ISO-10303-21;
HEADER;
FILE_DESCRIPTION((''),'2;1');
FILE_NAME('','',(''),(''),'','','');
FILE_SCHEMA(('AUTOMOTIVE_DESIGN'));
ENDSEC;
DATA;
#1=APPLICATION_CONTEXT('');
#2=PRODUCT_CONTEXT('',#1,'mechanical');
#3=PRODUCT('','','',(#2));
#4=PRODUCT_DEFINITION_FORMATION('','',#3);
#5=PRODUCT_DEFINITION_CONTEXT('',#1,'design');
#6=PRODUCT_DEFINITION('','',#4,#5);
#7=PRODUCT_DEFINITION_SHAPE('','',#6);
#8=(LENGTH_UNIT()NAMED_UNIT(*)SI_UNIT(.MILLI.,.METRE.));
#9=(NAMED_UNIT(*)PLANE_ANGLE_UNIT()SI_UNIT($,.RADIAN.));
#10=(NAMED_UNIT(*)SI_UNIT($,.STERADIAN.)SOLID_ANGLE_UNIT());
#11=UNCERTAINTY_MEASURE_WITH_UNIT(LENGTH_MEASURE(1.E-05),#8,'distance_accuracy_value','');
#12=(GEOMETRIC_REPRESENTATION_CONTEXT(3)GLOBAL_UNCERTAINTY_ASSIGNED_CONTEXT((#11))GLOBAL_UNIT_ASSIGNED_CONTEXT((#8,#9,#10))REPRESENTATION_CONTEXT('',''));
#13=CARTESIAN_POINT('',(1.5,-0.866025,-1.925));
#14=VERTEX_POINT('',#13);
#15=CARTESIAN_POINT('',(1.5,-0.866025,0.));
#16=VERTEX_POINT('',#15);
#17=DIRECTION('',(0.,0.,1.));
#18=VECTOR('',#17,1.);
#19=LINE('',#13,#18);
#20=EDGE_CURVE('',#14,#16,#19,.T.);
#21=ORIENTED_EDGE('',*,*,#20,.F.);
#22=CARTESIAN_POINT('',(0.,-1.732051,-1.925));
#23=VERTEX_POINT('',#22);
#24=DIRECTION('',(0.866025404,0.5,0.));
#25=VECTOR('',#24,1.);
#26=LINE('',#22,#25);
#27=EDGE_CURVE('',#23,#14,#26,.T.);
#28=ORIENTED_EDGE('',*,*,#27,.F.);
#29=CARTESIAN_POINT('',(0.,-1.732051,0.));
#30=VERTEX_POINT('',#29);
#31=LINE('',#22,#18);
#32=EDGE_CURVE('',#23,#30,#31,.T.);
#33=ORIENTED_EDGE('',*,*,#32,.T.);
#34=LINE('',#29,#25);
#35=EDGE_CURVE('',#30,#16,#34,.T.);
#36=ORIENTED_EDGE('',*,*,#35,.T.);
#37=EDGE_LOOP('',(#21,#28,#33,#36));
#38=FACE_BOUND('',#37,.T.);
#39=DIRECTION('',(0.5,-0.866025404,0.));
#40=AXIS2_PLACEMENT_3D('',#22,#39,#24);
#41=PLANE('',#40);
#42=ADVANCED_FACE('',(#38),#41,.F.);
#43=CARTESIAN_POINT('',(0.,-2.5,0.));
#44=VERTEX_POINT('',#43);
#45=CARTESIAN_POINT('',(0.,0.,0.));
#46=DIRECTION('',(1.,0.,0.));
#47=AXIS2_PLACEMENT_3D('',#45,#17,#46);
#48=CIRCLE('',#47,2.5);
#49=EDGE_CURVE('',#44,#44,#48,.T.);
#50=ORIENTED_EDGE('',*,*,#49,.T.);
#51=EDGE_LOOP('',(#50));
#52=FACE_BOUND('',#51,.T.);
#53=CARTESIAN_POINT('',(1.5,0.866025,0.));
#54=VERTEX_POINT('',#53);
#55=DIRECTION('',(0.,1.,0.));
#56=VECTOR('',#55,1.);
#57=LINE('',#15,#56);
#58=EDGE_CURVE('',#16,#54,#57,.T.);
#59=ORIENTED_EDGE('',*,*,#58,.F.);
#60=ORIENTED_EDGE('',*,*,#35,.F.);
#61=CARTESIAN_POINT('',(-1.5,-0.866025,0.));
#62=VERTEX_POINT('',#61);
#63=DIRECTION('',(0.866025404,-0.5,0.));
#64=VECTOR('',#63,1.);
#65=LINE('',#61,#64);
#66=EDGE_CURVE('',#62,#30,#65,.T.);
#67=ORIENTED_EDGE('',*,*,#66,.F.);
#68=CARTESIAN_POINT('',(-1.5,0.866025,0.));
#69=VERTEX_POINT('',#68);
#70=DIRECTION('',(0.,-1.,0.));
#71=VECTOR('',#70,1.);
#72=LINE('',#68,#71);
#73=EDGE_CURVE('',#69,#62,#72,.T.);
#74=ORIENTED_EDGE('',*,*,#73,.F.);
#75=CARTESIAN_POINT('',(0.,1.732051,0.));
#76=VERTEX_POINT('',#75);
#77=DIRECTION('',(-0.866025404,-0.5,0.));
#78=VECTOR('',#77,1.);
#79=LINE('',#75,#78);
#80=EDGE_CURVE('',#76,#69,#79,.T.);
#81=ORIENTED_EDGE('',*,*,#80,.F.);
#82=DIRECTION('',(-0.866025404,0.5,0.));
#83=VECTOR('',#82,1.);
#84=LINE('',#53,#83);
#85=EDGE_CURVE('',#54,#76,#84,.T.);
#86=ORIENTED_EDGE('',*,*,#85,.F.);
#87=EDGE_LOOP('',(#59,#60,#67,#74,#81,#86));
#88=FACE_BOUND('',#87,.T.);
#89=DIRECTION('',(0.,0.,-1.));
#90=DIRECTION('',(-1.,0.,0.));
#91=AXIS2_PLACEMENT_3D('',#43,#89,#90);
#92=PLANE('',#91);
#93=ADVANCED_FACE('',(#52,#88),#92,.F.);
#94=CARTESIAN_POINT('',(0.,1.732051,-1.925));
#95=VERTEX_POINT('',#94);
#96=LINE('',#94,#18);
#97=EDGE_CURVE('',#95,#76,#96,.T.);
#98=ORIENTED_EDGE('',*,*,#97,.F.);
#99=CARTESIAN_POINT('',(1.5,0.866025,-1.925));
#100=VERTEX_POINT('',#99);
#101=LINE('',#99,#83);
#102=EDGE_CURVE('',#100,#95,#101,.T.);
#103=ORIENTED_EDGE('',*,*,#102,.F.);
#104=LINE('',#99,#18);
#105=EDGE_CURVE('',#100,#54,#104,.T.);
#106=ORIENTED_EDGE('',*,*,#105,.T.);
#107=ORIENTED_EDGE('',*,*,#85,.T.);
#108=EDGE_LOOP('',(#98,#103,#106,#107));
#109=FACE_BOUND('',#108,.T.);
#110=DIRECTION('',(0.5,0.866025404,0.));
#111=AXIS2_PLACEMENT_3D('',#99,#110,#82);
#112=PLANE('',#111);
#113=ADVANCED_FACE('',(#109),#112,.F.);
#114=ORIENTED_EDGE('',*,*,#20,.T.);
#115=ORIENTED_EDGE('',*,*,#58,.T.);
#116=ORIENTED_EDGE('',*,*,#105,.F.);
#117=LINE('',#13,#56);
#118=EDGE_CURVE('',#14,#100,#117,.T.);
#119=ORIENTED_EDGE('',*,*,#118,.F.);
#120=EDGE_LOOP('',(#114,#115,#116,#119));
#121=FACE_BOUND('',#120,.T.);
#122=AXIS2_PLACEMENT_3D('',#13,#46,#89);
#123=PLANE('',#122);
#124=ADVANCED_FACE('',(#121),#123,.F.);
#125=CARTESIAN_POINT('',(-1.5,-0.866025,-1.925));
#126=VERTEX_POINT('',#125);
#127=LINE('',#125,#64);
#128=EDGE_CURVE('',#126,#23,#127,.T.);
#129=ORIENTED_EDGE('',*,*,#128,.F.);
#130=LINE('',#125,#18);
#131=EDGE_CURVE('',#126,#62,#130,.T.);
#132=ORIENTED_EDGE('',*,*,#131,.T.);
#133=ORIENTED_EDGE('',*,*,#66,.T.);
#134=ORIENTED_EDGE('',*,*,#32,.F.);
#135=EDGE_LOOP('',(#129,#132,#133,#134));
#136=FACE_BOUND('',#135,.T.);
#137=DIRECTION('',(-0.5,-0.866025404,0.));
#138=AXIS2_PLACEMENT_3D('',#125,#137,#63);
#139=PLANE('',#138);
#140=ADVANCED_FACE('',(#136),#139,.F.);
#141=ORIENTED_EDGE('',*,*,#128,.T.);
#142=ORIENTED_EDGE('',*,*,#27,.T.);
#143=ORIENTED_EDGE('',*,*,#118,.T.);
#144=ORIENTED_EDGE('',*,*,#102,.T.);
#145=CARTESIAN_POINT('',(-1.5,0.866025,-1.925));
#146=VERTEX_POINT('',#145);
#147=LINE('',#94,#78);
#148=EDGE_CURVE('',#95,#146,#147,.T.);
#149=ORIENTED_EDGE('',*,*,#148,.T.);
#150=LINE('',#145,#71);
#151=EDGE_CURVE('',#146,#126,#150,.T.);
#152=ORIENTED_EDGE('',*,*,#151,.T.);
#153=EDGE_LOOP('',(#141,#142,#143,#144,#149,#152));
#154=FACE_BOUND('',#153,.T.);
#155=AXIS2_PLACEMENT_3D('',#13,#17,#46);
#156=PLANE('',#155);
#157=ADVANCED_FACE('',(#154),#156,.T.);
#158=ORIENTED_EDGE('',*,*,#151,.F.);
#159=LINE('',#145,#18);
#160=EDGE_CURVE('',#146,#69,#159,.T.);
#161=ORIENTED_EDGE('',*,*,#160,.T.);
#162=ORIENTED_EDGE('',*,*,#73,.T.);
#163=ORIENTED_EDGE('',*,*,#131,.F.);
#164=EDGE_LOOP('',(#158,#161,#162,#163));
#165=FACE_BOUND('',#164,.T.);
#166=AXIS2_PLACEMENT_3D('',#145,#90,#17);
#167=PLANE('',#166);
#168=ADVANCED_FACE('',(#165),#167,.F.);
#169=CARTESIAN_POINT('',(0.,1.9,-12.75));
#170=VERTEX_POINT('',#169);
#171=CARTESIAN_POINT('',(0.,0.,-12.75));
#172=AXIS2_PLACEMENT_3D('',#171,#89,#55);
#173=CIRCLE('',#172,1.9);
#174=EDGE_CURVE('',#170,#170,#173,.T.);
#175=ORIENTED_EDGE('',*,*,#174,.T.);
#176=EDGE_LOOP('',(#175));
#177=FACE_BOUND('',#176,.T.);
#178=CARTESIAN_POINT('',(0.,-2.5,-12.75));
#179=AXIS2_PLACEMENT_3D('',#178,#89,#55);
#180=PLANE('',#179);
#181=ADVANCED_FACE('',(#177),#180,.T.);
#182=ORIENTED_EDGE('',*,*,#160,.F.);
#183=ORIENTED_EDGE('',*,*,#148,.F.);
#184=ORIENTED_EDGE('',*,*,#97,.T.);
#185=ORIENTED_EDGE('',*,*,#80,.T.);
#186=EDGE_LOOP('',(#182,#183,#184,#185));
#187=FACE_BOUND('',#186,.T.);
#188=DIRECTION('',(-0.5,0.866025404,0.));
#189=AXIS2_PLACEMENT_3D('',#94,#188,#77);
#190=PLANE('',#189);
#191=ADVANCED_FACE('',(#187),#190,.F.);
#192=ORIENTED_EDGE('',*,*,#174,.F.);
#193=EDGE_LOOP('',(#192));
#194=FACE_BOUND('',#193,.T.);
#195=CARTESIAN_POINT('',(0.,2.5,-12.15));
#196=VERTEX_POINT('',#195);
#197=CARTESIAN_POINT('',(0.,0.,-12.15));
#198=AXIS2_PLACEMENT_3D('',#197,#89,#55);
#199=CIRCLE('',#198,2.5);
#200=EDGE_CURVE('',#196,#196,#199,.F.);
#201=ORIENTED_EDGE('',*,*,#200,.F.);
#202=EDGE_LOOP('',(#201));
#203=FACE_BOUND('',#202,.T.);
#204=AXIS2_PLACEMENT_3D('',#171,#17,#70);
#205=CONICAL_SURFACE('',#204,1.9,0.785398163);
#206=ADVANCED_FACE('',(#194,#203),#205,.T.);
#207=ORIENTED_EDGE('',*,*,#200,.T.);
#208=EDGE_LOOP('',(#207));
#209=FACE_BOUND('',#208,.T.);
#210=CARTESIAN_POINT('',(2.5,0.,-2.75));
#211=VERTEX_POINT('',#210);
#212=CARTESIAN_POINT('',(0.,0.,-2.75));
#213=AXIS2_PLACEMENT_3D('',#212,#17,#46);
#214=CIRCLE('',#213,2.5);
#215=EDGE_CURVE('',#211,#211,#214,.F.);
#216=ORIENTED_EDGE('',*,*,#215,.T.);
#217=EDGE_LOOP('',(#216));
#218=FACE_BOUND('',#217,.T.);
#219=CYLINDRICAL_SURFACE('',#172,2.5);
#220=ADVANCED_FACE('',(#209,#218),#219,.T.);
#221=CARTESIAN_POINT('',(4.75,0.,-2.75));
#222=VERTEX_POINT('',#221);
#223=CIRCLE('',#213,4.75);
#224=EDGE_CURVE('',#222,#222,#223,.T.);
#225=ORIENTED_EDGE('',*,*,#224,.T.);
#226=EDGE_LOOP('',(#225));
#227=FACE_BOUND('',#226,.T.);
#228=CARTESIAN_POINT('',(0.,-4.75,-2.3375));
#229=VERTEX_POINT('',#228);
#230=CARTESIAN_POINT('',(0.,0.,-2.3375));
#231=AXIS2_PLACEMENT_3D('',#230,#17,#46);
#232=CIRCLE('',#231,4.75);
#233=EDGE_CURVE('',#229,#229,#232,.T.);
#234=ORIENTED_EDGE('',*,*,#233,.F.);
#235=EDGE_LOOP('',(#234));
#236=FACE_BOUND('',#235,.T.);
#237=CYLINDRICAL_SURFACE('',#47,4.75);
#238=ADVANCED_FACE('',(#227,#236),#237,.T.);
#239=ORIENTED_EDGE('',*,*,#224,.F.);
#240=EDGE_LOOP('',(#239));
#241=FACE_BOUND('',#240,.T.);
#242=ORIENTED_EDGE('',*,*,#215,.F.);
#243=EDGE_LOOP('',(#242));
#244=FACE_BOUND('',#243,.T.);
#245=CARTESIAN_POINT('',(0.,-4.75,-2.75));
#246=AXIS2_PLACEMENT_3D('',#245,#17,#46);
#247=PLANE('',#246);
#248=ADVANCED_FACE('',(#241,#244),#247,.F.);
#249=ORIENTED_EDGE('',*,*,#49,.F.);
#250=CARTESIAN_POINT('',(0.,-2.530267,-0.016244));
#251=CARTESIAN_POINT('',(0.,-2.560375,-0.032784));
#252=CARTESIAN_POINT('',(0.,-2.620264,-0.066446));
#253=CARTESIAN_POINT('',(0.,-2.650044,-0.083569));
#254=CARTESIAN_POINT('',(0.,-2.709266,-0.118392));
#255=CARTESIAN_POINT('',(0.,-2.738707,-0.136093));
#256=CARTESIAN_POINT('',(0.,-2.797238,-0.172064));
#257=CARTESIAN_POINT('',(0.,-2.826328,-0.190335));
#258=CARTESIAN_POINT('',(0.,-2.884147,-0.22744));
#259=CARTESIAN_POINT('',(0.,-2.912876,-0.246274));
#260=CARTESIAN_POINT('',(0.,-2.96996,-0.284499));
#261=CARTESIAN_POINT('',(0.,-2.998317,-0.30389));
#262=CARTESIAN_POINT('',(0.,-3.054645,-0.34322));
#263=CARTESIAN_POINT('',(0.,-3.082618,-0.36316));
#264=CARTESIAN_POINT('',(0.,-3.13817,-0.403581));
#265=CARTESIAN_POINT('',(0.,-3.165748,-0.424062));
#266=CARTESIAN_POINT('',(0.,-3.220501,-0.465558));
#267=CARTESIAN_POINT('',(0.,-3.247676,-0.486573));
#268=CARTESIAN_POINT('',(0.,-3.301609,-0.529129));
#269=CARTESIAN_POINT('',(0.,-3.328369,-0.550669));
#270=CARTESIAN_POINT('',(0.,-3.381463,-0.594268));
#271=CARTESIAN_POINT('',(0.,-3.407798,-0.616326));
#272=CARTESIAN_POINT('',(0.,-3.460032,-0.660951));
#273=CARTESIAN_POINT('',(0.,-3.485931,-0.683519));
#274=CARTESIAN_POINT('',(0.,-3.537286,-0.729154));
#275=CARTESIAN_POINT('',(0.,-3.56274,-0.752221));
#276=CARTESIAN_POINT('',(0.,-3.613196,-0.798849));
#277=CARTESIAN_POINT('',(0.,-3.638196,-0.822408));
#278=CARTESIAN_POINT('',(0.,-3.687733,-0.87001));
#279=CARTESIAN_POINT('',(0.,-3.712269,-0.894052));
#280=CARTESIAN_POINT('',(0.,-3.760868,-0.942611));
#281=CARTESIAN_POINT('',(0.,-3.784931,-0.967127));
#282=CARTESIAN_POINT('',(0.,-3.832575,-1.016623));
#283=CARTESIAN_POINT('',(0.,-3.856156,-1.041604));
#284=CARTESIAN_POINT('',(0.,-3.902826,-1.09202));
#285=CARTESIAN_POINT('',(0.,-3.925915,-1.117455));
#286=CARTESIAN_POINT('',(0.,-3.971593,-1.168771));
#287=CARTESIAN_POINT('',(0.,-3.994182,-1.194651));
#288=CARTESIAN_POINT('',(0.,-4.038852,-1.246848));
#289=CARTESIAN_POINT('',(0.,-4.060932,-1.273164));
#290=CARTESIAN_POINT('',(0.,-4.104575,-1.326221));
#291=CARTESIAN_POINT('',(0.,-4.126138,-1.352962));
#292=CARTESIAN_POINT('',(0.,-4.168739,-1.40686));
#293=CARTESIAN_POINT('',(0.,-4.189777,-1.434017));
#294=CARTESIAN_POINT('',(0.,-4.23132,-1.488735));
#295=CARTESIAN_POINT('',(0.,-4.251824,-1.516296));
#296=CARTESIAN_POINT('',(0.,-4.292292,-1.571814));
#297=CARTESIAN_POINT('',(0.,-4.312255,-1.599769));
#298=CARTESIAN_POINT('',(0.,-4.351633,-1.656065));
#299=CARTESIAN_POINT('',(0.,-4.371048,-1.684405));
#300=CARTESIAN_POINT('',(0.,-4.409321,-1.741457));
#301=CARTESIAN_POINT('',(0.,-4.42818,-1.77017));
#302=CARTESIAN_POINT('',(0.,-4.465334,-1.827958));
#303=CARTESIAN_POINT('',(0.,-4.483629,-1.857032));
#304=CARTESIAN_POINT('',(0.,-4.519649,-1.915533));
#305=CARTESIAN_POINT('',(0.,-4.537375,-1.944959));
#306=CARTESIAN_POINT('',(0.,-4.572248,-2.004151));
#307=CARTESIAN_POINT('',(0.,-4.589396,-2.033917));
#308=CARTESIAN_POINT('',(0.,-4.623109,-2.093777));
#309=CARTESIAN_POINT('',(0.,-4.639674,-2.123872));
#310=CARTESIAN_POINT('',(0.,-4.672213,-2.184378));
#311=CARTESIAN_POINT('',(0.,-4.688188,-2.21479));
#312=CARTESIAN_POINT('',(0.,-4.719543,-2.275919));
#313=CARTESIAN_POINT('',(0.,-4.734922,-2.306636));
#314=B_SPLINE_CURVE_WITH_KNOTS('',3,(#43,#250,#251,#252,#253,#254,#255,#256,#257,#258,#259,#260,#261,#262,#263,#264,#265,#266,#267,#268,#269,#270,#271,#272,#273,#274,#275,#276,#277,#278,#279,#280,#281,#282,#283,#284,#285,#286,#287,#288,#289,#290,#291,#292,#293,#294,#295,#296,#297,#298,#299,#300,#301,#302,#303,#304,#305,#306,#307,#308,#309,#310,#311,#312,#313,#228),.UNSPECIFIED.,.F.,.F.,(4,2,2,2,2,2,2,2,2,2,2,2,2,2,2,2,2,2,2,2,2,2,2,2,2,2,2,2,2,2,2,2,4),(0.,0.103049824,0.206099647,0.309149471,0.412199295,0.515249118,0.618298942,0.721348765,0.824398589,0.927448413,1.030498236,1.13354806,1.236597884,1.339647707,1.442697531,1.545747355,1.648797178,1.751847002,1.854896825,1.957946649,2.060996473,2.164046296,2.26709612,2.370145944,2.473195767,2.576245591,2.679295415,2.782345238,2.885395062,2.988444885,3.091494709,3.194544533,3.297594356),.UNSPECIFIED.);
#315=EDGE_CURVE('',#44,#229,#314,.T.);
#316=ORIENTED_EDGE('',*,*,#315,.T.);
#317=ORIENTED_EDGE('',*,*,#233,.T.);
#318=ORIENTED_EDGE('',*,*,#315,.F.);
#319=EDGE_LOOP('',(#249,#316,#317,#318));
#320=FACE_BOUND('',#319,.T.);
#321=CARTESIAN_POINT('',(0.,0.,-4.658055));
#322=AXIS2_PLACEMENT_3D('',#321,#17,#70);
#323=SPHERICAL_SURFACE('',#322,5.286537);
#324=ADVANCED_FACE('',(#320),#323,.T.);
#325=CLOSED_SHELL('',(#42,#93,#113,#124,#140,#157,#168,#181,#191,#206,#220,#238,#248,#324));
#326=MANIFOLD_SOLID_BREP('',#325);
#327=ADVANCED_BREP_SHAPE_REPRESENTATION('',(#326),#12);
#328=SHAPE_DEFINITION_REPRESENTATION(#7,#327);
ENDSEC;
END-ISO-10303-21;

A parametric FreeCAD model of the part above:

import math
import FreeCAD as App
import Part
import Sketcher
from FreeCAD import Vector
Q = App.Units.Quantity


def edges_at(feature, points):
    """Names of the edges that pass closest to the given points."""
    edges = feature.Shape.Edges
    near = lambda p: min(range(len(edges)), key=lambda i: edges[i].distToShape(Part.Vertex(*p))[0])
    return sorted({f"Edge{near(p) + 1}" for p in points})

doc = App.newDocument("Part")
params = doc.addObject("Spreadsheet::Sheet", "Params")
for row, (alias, value) in enumerate([
    ("sketch1_height", "10 mm"),
    ("sketch1_width", "2.5 mm"),
    ("revolution_angle", "360 deg"),
    ("chamfer_size", "0.6 mm"),
    ("sketch2_width", "2.5 mm"),
    ("sketch2_width2", "4.75 mm"),
    ("sketch2_height", "2.75 mm"),
    ("revolution2_angle", "360 deg"),
    ("pocket1_length", "1.925 mm"),
], start=1):
    params.set(f"A{row}", alias)
    params.set(f"B{row}", "=" + value)
    params.setAlias(f"B{row}", alias)

body = doc.addObject("PartDesign::Body", "Body")

# Sketch on YZ plane
sketch1 = doc.addObject("Sketcher::SketchObject", "Sketch")
body.addObject(sketch1)
sketch1.AttachmentSupport = (doc.YZ_Plane, [""])
sketch1.MapMode = "FlatFace"
sketch1.addGeometry(Part.LineSegment(Vector(2.5, -2.8, 0), Vector(0, -2.8, 0)), False)
sketch1.addGeometry(Part.LineSegment(Vector(0, -2.8, 0), Vector(0, -12.8, 0)), False)
sketch1.addGeometry(Part.LineSegment(Vector(0, -12.8, 0), Vector(2.5, -12.8, 0)), False)
sketch1.addGeometry(Part.LineSegment(Vector(2.5, -12.8, 0), Vector(2.5, -2.8, 0)), False)
sketch1.addConstraint(Sketcher.Constraint("Coincident", 0, 2, 1, 1))
sketch1.addConstraint(Sketcher.Constraint("Coincident", 1, 2, 2, 1))
sketch1.addConstraint(Sketcher.Constraint("Coincident", 2, 2, 3, 1))
sketch1.addConstraint(Sketcher.Constraint("Coincident", 3, 2, 0, 1))
sketch1.addConstraint(Sketcher.Constraint("Horizontal", 0))
sketch1.addConstraint(Sketcher.Constraint("Vertical", 1))
sketch1.addConstraint(Sketcher.Constraint("Horizontal", 2))
sketch1.addConstraint(Sketcher.Constraint("Vertical", 3))
sketch1.addConstraint(Sketcher.Constraint("PointOnObject", 0, 2, -2))
sketch1.addConstraint(Sketcher.Constraint("DistanceY", 1, 2, 1, 1, Q("10 mm")))
sketch1.addConstraint(Sketcher.Constraint("DistanceX", 0, 2, 0, 1, Q("2.5 mm")))
sketch1.addConstraint(Sketcher.Constraint("DistanceY", 0, 2, -1, 1, Q("2.75 mm")))
sketch1.setExpression("Constraints[9]", "Params.sketch1_height")
sketch1.setExpression("Constraints[10]", "Params.sketch1_width")
revolution = doc.addObject("PartDesign::Revolution", "Revolution")
body.addObject(revolution)
revolution.Profile = sketch1
revolution.ReferenceAxis = (sketch1, ["V_Axis"])
revolution.setExpression("Angle", "Params.revolution_angle")
doc.recompute()

chamfer = doc.addObject("PartDesign::Chamfer", "Chamfer")
body.addObject(chamfer)
chamfer.Base = (revolution, edges_at(revolution, [(0, -2.5, -12.75)]))
chamfer.setExpression("Size", "Params.chamfer_size")

# Sketch on YZ plane
sketch2 = doc.addObject("Sketcher::SketchObject", "Sketch001")
body.addObject(sketch2)
sketch2.AttachmentSupport = (doc.YZ_Plane, [""])
sketch2.MapMode = "FlatFace"
sketch2.addGeometry(Part.LineSegment(Vector(4.75, -2.75, 0), Vector(4.75, -2.34, 0)), False)
sketch2.addGeometry(Part.ArcOfCircle(Part.Circle(Vector(0, -4.66, 0), Vector(0, 0, 1), 5.29), math.radians(26), math.radians(62)), False)
sketch2.addGeometry(Part.LineSegment(Vector(2.5, 0, 0), Vector(0, 0, 0)), False)
sketch2.addGeometry(Part.LineSegment(Vector(0, 0, 0), Vector(0, -2.75, 0)), False)
sketch2.addGeometry(Part.LineSegment(Vector(0, -2.75, 0), Vector(4.75, -2.75, 0)), False)
sketch2.addConstraint(Sketcher.Constraint("Coincident", 0, 2, 1, 1))
sketch2.addConstraint(Sketcher.Constraint("Coincident", 1, 2, 2, 1))
sketch2.addConstraint(Sketcher.Constraint("Coincident", 2, 2, 3, 1))
sketch2.addConstraint(Sketcher.Constraint("Coincident", 3, 2, 4, 1))
sketch2.addConstraint(Sketcher.Constraint("Coincident", 4, 2, 0, 1))
sketch2.addConstraint(Sketcher.Constraint("Vertical", 0))
sketch2.addConstraint(Sketcher.Constraint("Horizontal", 2))
sketch2.addConstraint(Sketcher.Constraint("Vertical", 3))
sketch2.addConstraint(Sketcher.Constraint("Horizontal", 4))
sketch2.addConstraint(Sketcher.Constraint("Coincident", 2, 2, -1, 1))
sketch2.addConstraint(Sketcher.Constraint("PointOnObject", 1, 3, -2))
sketch2.addConstraint(Sketcher.Constraint("DistanceX", 2, 2, 2, 1, Q("2.5 mm")))
sketch2.addConstraint(Sketcher.Constraint("DistanceX", 4, 1, 4, 2, Q("4.75 mm")))
sketch2.addConstraint(Sketcher.Constraint("DistanceY", 3, 2, 3, 1, Q("2.75 mm")))
sketch2.addConstraint(Sketcher.Constraint("DistanceY", 0, 1, 0, 2, Q("0.4125 mm")))
sketch2.setExpression("Constraints[11]", "Params.sketch2_width")
sketch2.setExpression("Constraints[12]", "Params.sketch2_width2")
sketch2.setExpression("Constraints[13]", "Params.sketch2_height")
revolution2 = doc.addObject("PartDesign::Revolution", "Revolution001")
body.addObject(revolution2)
revolution2.Profile = sketch2
revolution2.ReferenceAxis = (sketch2, ["V_Axis"])
revolution2.setExpression("Angle", "Params.revolution2_angle")

# Sketch on XY plane
sketch3 = doc.addObject("Sketcher::SketchObject", "Sketch002")
body.addObject(sketch3)
sketch3.AttachmentSupport = (doc.XY_Plane, [""])
sketch3.MapMode = "FlatFace"
sketch3.addGeometry(Part.LineSegment(Vector(1.5, -0.9, 0), Vector(1.5, 0.9, 0)), False)
sketch3.addGeometry(Part.LineSegment(Vector(1.5, 0.9, 0), Vector(0, 1.7, 0)), False)
sketch3.addGeometry(Part.LineSegment(Vector(0, 1.7, 0), Vector(-1.5, 0.9, 0)), False)
sketch3.addGeometry(Part.LineSegment(Vector(-1.5, 0.9, 0), Vector(-1.5, -0.9, 0)), False)
sketch3.addGeometry(Part.LineSegment(Vector(-1.5, -0.9, 0), Vector(0, -1.7, 0)), False)
sketch3.addGeometry(Part.LineSegment(Vector(0, -1.7, 0), Vector(1.5, -0.9, 0)), False)
sketch3.addConstraint(Sketcher.Constraint("Coincident", 0, 2, 1, 1))
sketch3.addConstraint(Sketcher.Constraint("Coincident", 1, 2, 2, 1))
sketch3.addConstraint(Sketcher.Constraint("Coincident", 2, 2, 3, 1))
sketch3.addConstraint(Sketcher.Constraint("Coincident", 3, 2, 4, 1))
sketch3.addConstraint(Sketcher.Constraint("Coincident", 4, 2, 5, 1))
sketch3.addConstraint(Sketcher.Constraint("Coincident", 5, 2, 0, 1))
sketch3.addConstraint(Sketcher.Constraint("Vertical", 0))
sketch3.addConstraint(Sketcher.Constraint("Vertical", 3))
sketch3.addConstraint(Sketcher.Constraint("Symmetric", 0, 2, 3, 2, -1, 1))
sketch3.addConstraint(Sketcher.Constraint("Symmetric", 1, 2, 4, 2, -1, 1))
sketch3.addConstraint(Sketcher.Constraint("PointOnObject", 1, 2, -2))
sketch3.addConstraint(Sketcher.Constraint("Parallel", 2, 5))
sketch3.addConstraint(Sketcher.Constraint("Horizontal", 0, 2, 2, 2))
sketch3.addConstraint(Sketcher.Constraint("Angle", 1, Q("150 deg")))
sketch3.addConstraint(Sketcher.Constraint("DistanceX", 2, 2, 0, 2, Q("3 mm")))
sketch3.addConstraint(Sketcher.Constraint("DistanceY", 0, 1, 0, 2, Q("1.732051 mm")))
pocket1 = doc.addObject("PartDesign::Pocket", "Pocket")
body.addObject(pocket1)
pocket1.Profile = sketch3
pocket1.setExpression("Length", "Params.pocket1_length")

doc.recompute()
